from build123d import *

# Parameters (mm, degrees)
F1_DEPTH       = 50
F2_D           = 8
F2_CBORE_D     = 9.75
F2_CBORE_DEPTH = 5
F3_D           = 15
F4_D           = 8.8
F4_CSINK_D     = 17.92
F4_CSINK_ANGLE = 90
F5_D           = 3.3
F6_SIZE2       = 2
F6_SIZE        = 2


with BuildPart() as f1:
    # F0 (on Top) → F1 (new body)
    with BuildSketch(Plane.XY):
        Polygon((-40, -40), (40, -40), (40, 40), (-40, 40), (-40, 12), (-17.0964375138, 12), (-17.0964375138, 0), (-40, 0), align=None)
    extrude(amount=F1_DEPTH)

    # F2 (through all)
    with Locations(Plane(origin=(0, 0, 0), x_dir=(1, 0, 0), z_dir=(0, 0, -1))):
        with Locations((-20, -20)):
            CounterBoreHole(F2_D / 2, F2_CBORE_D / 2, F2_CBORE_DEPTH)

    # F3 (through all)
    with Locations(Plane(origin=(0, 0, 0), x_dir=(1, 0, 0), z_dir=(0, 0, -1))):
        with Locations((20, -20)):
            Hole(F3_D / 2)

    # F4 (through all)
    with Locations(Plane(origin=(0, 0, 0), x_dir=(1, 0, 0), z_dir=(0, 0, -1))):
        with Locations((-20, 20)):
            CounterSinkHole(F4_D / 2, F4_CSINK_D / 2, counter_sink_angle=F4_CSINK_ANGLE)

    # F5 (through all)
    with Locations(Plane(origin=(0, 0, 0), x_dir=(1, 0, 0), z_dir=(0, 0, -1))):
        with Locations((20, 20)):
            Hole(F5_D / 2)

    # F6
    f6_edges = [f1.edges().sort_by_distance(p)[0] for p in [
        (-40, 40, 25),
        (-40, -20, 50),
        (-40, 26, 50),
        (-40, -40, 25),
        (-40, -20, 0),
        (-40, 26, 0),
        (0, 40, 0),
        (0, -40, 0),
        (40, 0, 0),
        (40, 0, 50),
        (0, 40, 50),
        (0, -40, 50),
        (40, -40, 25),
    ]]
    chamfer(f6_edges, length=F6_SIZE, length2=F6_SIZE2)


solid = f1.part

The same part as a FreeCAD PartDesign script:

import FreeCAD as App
import Part
import Sketcher

V = App.Vector
Q = App.Units.Quantity


def edges_at(feature, points):
    """Names of the edges that pass closest to the given points."""
    edges = feature.Shape.Edges
    near = lambda p: min(range(len(edges)), key=lambda i: edges[i].distToShape(Part.Vertex(*p))[0])
    return sorted({f"Edge{near(p) + 1}" for p in points})

doc = App.newDocument("Part")
body = doc.addObject("PartDesign::Body", "Body")

# Sketch on XY plane
sketch1 = body.newObject("Sketcher::SketchObject", "Sketch")
sketch1.AttachmentSupport = (doc.getObject("XY_Plane"), [""])
sketch1.MapMode = "FlatFace"
sketch1.addGeometry(Part.LineSegment(V(-40, -40, 0), V(40, -40, 0)), False)
sketch1.addGeometry(Part.LineSegment(V(40, -40, 0), V(40, 40, 0)), False)
sketch1.addGeometry(Part.LineSegment(V(40, 40, 0), V(-40, 40, 0)), False)
sketch1.addGeometry(Part.LineSegment(V(-40, 40, 0), V(-40, 12, 0)), False)
sketch1.addGeometry(Part.LineSegment(V(-40, 12, 0), V(-17, 12, 0)), False)
sketch1.addGeometry(Part.LineSegment(V(-17, 12, 0), V(-17, 0, 0)), False)
sketch1.addGeometry(Part.LineSegment(V(-17, 0, 0), V(-40, 0, 0)), False)
sketch1.addGeometry(Part.LineSegment(V(-40, 0, 0), V(-40, -40, 0)), False)
sketch1.addConstraint(Sketcher.Constraint("Coincident", 0, 2, 1, 1))
sketch1.addConstraint(Sketcher.Constraint("Coincident", 1, 2, 2, 1))
sketch1.addConstraint(Sketcher.Constraint("Coincident", 2, 2, 3, 1))
sketch1.addConstraint(Sketcher.Constraint("Coincident", 3, 2, 4, 1))
sketch1.addConstraint(Sketcher.Constraint("Coincident", 4, 2, 5, 1))
sketch1.addConstraint(Sketcher.Constraint("Coincident", 5, 2, 6, 1))
sketch1.addConstraint(Sketcher.Constraint("Coincident", 6, 2, 7, 1))
sketch1.addConstraint(Sketcher.Constraint("Coincident", 7, 2, 0, 1))
sketch1.addConstraint(Sketcher.Constraint("Horizontal", 0))
sketch1.addConstraint(Sketcher.Constraint("Vertical", 1))
sketch1.addConstraint(Sketcher.Constraint("Horizontal", 2))
sketch1.addConstraint(Sketcher.Constraint("Vertical", 3))
sketch1.addConstraint(Sketcher.Constraint("Horizontal", 4))
sketch1.addConstraint(Sketcher.Constraint("Vertical", 5))
sketch1.addConstraint(Sketcher.Constraint("Horizontal", 6))
sketch1.addConstraint(Sketcher.Constraint("Vertical", 7))
sketch1.addConstraint(Sketcher.Constraint("Symmetric", 0, 2, 2, 2, -1, 1))
sketch1.addConstraint(Sketcher.Constraint("PointOnObject", 5, 2, -1))
sketch1.addConstraint(Sketcher.Constraint("Vertical", 3, 2, 6, 2))
sketch1.addConstraint(Sketcher.Constraint("Equal", 2, 1))
sketch1.addConstraint(Sketcher.Constraint("DistanceX", 0, 1, 0, 2, Q("80 mm")))
sketch1.addConstraint(Sketcher.Constraint("DistanceY", 3, 2, 3, 1, Q("28 mm")))
sketch1.addConstraint(Sketcher.Constraint("DistanceX", 4, 1, 4, 2, Q("22.903562 mm")))
pad1 = body.newObject("PartDesign::Pad", "Pad")
pad1.Profile = sketch1
pad1.Length = 50

# Sketch on XY plane
sketch2 = body.newObject("Sketcher::SketchObject", "Sketch001")
sketch2.AttachmentSupport = (doc.getObject("XY_Plane"), [""])
sketch2.MapMode = "FlatFace"
sketch2.addGeometry(Part.Circle(V(-20, 20, 0), V(0, 0, 1), 4), False)
sketch2.addConstraint(Sketcher.Constraint("Diameter", 0, Q("8 mm")))
sketch2.addConstraint(Sketcher.Constraint("DistanceX", 0, 3, -1, 1, Q("20 mm")))
sketch2.addConstraint(Sketcher.Constraint("DistanceY", -1, 1, 0, 3, Q("20 mm")))
doc.recompute()
hole = body.newObject("PartDesign::Hole", "Hole")
hole.Profile = sketch2
hole.ThreadType = "None"
hole.Diameter = 8
hole.DepthType = "ThroughAll"
hole.HoleCutType = "Counterbore"
hole.HoleCutDiameter = 9.75
hole.HoleCutDepth = 5
hole.Reversed = True

# Sketch on XY plane
sketch3 = body.newObject("Sketcher::SketchObject", "Sketch002")
sketch3.AttachmentSupport = (doc.getObject("XY_Plane"), [""])
sketch3.MapMode = "FlatFace"
sketch3.addGeometry(Part.Circle(V(20, 20, 0), V(0, 0, 1), 8), False)
sketch3.addConstraint(Sketcher.Constraint("Diameter", 0, Q("15 mm")))
sketch3.addConstraint(Sketcher.Constraint("DistanceX", -1, 1, 0, 3, Q("20 mm")))
sketch3.addConstraint(Sketcher.Constraint("DistanceY", -1, 1, 0, 3, Q("20 mm")))
doc.recompute()
hole2 = body.newObject("PartDesign::Hole", "Hole001")
hole2.Profile = sketch3
hole2.ThreadType = "None"
hole2.Diameter = 15
hole2.DepthType = "ThroughAll"
hole2.Reversed = True

# Sketch on XY plane
sketch4 = body.newObject("Sketcher::SketchObject", "Sketch003")
sketch4.AttachmentSupport = (doc.getObject("XY_Plane"), [""])
sketch4.MapMode = "FlatFace"
sketch4.addGeometry(Part.Circle(V(-20, -20, 0), V(0, 0, 1), 4.4), False)
sketch4.addConstraint(Sketcher.Constraint("Diameter", 0, Q("8.8 mm")))
sketch4.addConstraint(Sketcher.Constraint("DistanceX", 0, 3, -1, 1, Q("20 mm")))
sketch4.addConstraint(Sketcher.Constraint("DistanceY", 0, 3, -1, 1, Q("20 mm")))
doc.recompute()
hole3 = body.newObject("PartDesign::Hole", "Hole002")
hole3.Profile = sketch4
hole3.ThreadType = "None"
hole3.Diameter = 8.8
hole3.DepthType = "ThroughAll"
hole3.HoleCutType = "Countersink"
hole3.HoleCutDiameter = 17.92
hole3.HoleCutCountersinkAngle = 90
hole3.Reversed = True

# Sketch on XY plane
sketch5 = body.newObject("Sketcher::SketchObject", "Sketch004")
sketch5.AttachmentSupport = (doc.getObject("XY_Plane"), [""])
sketch5.MapMode = "FlatFace"
sketch5.addGeometry(Part.Circle(V(20, -20, 0), V(0, 0, 1), 1.6), False)
sketch5.addConstraint(Sketcher.Constraint("Diameter", 0, Q("3.3 mm")))
sketch5.addConstraint(Sketcher.Constraint("DistanceX", -1, 1, 0, 3, Q("20 mm")))
sketch5.addConstraint(Sketcher.Constraint("DistanceY", 0, 3, -1, 1, Q("20 mm")))
doc.recompute()
hole4 = body.newObject("PartDesign::Hole", "Hole003")
hole4.Profile = sketch5
hole4.ThreadType = "None"
hole4.Diameter = 3.3
hole4.DepthType = "ThroughAll"
hole4.Reversed = True
doc.recompute()

chamfer = body.newObject("PartDesign::Chamfer", "Chamfer")
chamfer.Base = (hole4, edges_at(hole4, [
    (-40, 40, 25),
    (-40, -20, 50),
    (-40, 26, 50),
    (-40, -40, 25),
    (-40, -20, 0),
    (-40, 26, 0),
    (0, 40, 0),
    (0, -40, 0),
    (40, 0, 0),
    (40, 0, 50),
    (0, 40, 50),
    (0, -40, 50),
    (40, -40, 25),
]))
chamfer.ChamferType = "Two distances"
chamfer.Size = 2
chamfer.Size2 = 2

doc.recompute()
